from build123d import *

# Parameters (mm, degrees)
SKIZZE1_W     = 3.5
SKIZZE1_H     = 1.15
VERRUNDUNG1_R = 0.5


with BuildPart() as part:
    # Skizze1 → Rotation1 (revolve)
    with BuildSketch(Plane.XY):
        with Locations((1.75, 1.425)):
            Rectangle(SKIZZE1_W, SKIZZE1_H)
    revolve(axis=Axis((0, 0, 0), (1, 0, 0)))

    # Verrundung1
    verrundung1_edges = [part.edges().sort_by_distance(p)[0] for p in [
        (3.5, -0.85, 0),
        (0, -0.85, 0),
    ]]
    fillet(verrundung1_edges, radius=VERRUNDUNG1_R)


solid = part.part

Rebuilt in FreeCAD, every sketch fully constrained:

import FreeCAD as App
import Part
import Sketcher

V = App.Vector


def edges_at(feature, points):
    """Names of the edges that pass closest to the given points."""
    edges = feature.Shape.Edges
    near = lambda p: min(range(len(edges)), key=lambda i: edges[i].distToShape(Part.Vertex(*p))[0])
    return sorted({f"Edge{near(p) + 1}" for p in points})


def add_polygon(sketch, points):
    """Adds a closed chain of lines whose ends are joined by coincident constraints."""
    first, n = sketch.GeometryCount, len(points)
    for a, b in zip(points, points[1:] + points[:1]):
        sketch.addGeometry(Part.LineSegment(App.Vector(*a, 0), App.Vector(*b, 0)), False)
    for i in range(n):
        sketch.addConstraint(Sketcher.Constraint("Coincident", first + i, 2, first + (i + 1) % n, 1))

doc = App.newDocument("Part")
body = doc.addObject("PartDesign::Body", "Body")

sketch1 = body.newObject("Sketcher::SketchObject", "Sketch")
sketch1.AttachmentSupport = (doc.getObject("XY_Plane"), [""])
sketch1.MapMode = "FlatFace"
add_polygon(sketch1, [(0, 2), (0, 0.85), (3.5, 0.85), (3.5, 2)])
sketch1.addConstraint([
    Sketcher.Constraint("Vertical", 0),
    Sketcher.Constraint("Horizontal", 1),
    Sketcher.Constraint("Vertical", 2),
    Sketcher.Constraint("Horizontal", 3),
    Sketcher.Constraint("PointOnObject", 0, 2, -2),
    Sketcher.Constraint("DistanceX", 1, 1, 1, 2, 3.5),
    Sketcher.Constraint("DistanceY", -1, 1, 2, 2, 2.0),
    Sketcher.Constraint("DistanceY", 0, 2, 0, 1, 1.15),
])
revolution = body.newObject("PartDesign::Revolution", "Revolution")
revolution.Profile = sketch1
revolution.ReferenceAxis = (sketch1, ["H_Axis"])
revolution.Angle = 360
doc.recompute()

fillet = body.newObject("PartDesign::Fillet", "Fillet")
fillet.Base = (revolution, edges_at(revolution, [(3.5, -0.85, 0), (0, -0.85, 0)]))
fillet.Radius = 0.5

doc.recompute()
